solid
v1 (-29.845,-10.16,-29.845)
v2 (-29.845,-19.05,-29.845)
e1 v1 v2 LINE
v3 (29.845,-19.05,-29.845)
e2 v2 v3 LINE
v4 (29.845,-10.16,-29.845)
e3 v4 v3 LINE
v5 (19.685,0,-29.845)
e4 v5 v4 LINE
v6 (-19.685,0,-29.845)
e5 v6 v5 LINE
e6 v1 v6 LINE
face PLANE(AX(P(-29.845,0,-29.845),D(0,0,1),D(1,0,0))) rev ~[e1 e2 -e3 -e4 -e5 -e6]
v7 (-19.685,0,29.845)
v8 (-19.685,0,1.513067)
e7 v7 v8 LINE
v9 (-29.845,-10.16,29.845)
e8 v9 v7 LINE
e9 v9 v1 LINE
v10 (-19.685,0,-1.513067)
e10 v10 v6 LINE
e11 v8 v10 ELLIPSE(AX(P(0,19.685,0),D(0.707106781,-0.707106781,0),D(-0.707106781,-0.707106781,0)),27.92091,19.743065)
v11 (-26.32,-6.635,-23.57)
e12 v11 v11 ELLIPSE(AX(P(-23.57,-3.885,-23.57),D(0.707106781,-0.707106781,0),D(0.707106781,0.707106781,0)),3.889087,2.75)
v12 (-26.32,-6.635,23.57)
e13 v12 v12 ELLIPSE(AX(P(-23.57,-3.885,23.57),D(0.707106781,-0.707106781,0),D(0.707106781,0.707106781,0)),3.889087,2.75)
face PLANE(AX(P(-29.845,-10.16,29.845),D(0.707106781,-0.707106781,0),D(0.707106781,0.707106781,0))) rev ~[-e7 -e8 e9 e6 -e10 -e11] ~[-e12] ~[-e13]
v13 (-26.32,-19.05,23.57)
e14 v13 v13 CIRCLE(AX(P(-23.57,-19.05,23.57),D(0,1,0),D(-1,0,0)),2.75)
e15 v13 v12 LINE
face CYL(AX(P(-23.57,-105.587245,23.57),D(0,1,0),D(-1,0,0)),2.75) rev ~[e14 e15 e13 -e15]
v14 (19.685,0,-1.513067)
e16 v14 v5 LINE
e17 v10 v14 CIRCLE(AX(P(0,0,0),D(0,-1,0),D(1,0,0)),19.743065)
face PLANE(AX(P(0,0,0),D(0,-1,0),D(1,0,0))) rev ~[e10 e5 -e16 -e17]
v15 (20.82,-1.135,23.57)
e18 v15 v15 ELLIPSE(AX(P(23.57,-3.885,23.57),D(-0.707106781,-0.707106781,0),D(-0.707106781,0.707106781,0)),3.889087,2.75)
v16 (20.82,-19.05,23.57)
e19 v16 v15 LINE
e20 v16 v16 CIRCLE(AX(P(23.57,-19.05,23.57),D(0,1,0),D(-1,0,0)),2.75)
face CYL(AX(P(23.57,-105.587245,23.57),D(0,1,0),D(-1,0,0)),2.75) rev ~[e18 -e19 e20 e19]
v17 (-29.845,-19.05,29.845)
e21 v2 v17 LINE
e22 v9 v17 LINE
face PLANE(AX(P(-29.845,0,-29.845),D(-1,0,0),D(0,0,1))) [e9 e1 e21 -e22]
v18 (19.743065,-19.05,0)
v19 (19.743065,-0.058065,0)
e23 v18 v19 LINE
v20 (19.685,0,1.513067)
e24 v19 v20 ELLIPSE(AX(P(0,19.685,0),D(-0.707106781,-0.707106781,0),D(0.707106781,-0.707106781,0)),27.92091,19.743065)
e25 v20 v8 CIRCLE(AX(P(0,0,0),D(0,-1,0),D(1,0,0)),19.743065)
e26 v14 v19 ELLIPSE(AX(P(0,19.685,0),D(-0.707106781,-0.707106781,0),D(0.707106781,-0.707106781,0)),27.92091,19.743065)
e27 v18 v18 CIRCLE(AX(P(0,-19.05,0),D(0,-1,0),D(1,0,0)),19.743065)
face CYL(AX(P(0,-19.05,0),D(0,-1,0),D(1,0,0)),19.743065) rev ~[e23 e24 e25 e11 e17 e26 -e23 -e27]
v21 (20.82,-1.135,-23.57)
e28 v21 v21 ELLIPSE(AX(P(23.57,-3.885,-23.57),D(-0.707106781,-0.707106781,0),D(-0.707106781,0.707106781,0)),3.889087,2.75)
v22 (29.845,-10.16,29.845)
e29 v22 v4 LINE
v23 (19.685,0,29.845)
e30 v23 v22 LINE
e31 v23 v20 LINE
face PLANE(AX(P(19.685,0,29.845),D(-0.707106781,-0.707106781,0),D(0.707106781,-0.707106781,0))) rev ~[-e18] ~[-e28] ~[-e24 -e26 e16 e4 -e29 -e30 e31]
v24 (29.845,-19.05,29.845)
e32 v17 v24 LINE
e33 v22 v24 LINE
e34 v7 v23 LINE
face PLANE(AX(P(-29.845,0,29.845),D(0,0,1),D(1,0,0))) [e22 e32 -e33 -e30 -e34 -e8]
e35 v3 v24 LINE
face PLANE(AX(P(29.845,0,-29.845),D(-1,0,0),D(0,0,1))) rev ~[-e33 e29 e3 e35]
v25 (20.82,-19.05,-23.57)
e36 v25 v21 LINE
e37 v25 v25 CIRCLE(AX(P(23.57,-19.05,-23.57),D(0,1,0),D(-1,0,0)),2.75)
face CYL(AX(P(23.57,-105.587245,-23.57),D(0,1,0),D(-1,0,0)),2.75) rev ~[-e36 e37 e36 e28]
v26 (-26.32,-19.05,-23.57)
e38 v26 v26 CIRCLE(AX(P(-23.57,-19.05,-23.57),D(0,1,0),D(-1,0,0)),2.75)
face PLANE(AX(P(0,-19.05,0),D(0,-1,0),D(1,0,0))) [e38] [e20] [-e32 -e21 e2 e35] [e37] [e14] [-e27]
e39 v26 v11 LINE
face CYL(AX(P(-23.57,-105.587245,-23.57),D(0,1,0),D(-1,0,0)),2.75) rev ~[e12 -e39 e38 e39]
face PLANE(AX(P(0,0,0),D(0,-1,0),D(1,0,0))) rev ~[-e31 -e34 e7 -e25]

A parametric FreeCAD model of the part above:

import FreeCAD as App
import Part
import Sketcher
Q = App.Units.Quantity


def add_polygon(sketch, points):
    """Adds a closed chain of lines whose ends are joined by coincident constraints."""
    first, n = sketch.GeometryCount, len(points)
    for a, b in zip(points, points[1:] + points[:1]):
        sketch.addGeometry(Part.LineSegment(App.Vector(*a, 0), App.Vector(*b, 0)), False)
    for i in range(n):
        sketch.addConstraint(Sketcher.Constraint("Coincident", first + i, 2, first + (i + 1) % n, 1))

doc = App.newDocument("Part")
body = doc.addObject("PartDesign::Body", "Body")

sketch1 = body.newObject("Sketcher::SketchObject", "Sketch")
sketch1.AttachmentSupport = (doc.getObject("XZ_Plane"), [""])
sketch1.MapMode = "FlatFace"
add_polygon(sketch1, [(-30, 30), (-30, -30), (30, -30), (30, 30)])
sketch1.addConstraint([
    Sketcher.Constraint("Vertical", 0),
    Sketcher.Constraint("Horizontal", 1),
    Sketcher.Constraint("Vertical", 2),
    Sketcher.Constraint("Horizontal", 3),
    Sketcher.Constraint("Symmetric", 0, 2, 2, 2, -1, 1),
    Sketcher.Constraint("Equal", 3, 0),
    Sketcher.Constraint("DistanceX", 1, 1, 1, 2, Q("2.35 in")),
])
pad1 = body.newObject("PartDesign::Pad", "Pad")
pad1.Profile = sketch1
pad1.Length = Q("0.75 in")

sketch2 = body.newObject("Sketcher::SketchObject", "Sketch001")
sketch2.AttachmentSupport = (doc.getObject("XZ_Plane"), [""])
sketch2.MapMode = "FlatFace"
sketch2.AttachmentOffset = App.Placement(App.Vector(0, 0, 0.75 * 25.4), App.Rotation())
sketch2.addGeometry(Part.Circle(App.Vector(0, 0, 0), App.Vector(0, 0, 1), 20), False)
sketch2.addConstraint([
    Sketcher.Constraint("Coincident", 0, 3, -1, 1),
    Sketcher.Constraint("Diameter", 0, Q("39.486129 mm")),
])
pocket1 = body.newObject("PartDesign::Pocket", "Pocket")
pocket1.Profile = sketch2
pocket1.Length = Q("1 in")

sketch3 = body.newObject("Sketcher::SketchObject", "Sketch002")
sketch3.AttachmentSupport = (doc.getObject("XZ_Plane"), [""])
sketch3.MapMode = "FlatFace"
sketch3.AttachmentOffset = App.Placement(App.Vector(0, 0, 0.75 * 25.4), App.Rotation())
sketch3.addGeometry([
    Part.Circle(App.Vector(-23.6, 23.6, 0), App.Vector(0, 0, 1), 2.8),
    Part.Circle(App.Vector(23.6, 23.6, 0), App.Vector(0, 0, 1), 2.8),
    Part.Circle(App.Vector(23.6, -23.6, 0), App.Vector(0, 0, 1), 2.8),
    Part.Circle(App.Vector(-23.6, -23.6, 0), App.Vector(0, 0, 1), 2.8),
], False)
sketch3.addConstraint([
    Sketcher.Constraint("Equal", 0, 1),
    Sketcher.Constraint("Equal", 1, 2),
    Sketcher.Constraint("Equal", 2, 3),
    Sketcher.Constraint("Symmetric", 0, 3, 2, 3, -1, 1),
    Sketcher.Constraint("Symmetric", 1, 3, 3, 3, -1, 1),
    Sketcher.Constraint("Symmetric", 0, 3, 1, 3, -2),
    Sketcher.Constraint("Diameter", 0, Q("5.5 mm")),
    Sketcher.Constraint("DistanceX", 0, 3, -1, 1, Q("23.57 mm")),
    Sketcher.Constraint("DistanceY", -1, 1, 0, 3, Q("23.57 mm")),
])
doc.recompute()
hole = body.newObject("PartDesign::Hole", "Hole")
hole.Profile = sketch3
hole.ThreadType = "None"
hole.Diameter = 5.5
hole.DepthType = "ThroughAll"

sketch4 = body.newObject("Sketcher::SketchObject", "Sketch003")
sketch4.AttachmentSupport = (doc.getObject("XY_Plane"), [""])
sketch4.MapMode = "FlatFace"
sketch4.AttachmentOffset = App.Placement(App.Vector(0, 0, 1.175 * 25.4), App.Rotation())
add_polygon(sketch4, [(-30, 0), (-30, -10), (-20, 0)])
add_polygon(sketch4, [(20, 0), (30, -10), (30, 0)])
sketch4.addConstraint([
    Sketcher.Constraint("Vertical", 0),
    Sketcher.Constraint("Horizontal", 2),
    Sketcher.Constraint("Vertical", 4),
    Sketcher.Constraint("Horizontal", 5),
    Sketcher.Constraint("Symmetric", 2, 2, 4, 2, -1, 1),
    Sketcher.Constraint("Symmetric", 1, 2, 5, 2, -2),
    Sketcher.Constraint("Perpendicular", 1, 3),
    Sketcher.Constraint("Horizontal", 0, 2, 3, 2),
    Sketcher.Constraint("DistanceX", 2, 2, 2, 1, Q("0.4 in")),
    Sketcher.Constraint("DistanceX", 1, 2, 3, 2, Q("1.95 in")),
])
pocket2 = body.newObject("PartDesign::Pocket", "Pocket001")
pocket2.Profile = sketch4
pocket2.Type = "ThroughAll"

doc.recompute()
